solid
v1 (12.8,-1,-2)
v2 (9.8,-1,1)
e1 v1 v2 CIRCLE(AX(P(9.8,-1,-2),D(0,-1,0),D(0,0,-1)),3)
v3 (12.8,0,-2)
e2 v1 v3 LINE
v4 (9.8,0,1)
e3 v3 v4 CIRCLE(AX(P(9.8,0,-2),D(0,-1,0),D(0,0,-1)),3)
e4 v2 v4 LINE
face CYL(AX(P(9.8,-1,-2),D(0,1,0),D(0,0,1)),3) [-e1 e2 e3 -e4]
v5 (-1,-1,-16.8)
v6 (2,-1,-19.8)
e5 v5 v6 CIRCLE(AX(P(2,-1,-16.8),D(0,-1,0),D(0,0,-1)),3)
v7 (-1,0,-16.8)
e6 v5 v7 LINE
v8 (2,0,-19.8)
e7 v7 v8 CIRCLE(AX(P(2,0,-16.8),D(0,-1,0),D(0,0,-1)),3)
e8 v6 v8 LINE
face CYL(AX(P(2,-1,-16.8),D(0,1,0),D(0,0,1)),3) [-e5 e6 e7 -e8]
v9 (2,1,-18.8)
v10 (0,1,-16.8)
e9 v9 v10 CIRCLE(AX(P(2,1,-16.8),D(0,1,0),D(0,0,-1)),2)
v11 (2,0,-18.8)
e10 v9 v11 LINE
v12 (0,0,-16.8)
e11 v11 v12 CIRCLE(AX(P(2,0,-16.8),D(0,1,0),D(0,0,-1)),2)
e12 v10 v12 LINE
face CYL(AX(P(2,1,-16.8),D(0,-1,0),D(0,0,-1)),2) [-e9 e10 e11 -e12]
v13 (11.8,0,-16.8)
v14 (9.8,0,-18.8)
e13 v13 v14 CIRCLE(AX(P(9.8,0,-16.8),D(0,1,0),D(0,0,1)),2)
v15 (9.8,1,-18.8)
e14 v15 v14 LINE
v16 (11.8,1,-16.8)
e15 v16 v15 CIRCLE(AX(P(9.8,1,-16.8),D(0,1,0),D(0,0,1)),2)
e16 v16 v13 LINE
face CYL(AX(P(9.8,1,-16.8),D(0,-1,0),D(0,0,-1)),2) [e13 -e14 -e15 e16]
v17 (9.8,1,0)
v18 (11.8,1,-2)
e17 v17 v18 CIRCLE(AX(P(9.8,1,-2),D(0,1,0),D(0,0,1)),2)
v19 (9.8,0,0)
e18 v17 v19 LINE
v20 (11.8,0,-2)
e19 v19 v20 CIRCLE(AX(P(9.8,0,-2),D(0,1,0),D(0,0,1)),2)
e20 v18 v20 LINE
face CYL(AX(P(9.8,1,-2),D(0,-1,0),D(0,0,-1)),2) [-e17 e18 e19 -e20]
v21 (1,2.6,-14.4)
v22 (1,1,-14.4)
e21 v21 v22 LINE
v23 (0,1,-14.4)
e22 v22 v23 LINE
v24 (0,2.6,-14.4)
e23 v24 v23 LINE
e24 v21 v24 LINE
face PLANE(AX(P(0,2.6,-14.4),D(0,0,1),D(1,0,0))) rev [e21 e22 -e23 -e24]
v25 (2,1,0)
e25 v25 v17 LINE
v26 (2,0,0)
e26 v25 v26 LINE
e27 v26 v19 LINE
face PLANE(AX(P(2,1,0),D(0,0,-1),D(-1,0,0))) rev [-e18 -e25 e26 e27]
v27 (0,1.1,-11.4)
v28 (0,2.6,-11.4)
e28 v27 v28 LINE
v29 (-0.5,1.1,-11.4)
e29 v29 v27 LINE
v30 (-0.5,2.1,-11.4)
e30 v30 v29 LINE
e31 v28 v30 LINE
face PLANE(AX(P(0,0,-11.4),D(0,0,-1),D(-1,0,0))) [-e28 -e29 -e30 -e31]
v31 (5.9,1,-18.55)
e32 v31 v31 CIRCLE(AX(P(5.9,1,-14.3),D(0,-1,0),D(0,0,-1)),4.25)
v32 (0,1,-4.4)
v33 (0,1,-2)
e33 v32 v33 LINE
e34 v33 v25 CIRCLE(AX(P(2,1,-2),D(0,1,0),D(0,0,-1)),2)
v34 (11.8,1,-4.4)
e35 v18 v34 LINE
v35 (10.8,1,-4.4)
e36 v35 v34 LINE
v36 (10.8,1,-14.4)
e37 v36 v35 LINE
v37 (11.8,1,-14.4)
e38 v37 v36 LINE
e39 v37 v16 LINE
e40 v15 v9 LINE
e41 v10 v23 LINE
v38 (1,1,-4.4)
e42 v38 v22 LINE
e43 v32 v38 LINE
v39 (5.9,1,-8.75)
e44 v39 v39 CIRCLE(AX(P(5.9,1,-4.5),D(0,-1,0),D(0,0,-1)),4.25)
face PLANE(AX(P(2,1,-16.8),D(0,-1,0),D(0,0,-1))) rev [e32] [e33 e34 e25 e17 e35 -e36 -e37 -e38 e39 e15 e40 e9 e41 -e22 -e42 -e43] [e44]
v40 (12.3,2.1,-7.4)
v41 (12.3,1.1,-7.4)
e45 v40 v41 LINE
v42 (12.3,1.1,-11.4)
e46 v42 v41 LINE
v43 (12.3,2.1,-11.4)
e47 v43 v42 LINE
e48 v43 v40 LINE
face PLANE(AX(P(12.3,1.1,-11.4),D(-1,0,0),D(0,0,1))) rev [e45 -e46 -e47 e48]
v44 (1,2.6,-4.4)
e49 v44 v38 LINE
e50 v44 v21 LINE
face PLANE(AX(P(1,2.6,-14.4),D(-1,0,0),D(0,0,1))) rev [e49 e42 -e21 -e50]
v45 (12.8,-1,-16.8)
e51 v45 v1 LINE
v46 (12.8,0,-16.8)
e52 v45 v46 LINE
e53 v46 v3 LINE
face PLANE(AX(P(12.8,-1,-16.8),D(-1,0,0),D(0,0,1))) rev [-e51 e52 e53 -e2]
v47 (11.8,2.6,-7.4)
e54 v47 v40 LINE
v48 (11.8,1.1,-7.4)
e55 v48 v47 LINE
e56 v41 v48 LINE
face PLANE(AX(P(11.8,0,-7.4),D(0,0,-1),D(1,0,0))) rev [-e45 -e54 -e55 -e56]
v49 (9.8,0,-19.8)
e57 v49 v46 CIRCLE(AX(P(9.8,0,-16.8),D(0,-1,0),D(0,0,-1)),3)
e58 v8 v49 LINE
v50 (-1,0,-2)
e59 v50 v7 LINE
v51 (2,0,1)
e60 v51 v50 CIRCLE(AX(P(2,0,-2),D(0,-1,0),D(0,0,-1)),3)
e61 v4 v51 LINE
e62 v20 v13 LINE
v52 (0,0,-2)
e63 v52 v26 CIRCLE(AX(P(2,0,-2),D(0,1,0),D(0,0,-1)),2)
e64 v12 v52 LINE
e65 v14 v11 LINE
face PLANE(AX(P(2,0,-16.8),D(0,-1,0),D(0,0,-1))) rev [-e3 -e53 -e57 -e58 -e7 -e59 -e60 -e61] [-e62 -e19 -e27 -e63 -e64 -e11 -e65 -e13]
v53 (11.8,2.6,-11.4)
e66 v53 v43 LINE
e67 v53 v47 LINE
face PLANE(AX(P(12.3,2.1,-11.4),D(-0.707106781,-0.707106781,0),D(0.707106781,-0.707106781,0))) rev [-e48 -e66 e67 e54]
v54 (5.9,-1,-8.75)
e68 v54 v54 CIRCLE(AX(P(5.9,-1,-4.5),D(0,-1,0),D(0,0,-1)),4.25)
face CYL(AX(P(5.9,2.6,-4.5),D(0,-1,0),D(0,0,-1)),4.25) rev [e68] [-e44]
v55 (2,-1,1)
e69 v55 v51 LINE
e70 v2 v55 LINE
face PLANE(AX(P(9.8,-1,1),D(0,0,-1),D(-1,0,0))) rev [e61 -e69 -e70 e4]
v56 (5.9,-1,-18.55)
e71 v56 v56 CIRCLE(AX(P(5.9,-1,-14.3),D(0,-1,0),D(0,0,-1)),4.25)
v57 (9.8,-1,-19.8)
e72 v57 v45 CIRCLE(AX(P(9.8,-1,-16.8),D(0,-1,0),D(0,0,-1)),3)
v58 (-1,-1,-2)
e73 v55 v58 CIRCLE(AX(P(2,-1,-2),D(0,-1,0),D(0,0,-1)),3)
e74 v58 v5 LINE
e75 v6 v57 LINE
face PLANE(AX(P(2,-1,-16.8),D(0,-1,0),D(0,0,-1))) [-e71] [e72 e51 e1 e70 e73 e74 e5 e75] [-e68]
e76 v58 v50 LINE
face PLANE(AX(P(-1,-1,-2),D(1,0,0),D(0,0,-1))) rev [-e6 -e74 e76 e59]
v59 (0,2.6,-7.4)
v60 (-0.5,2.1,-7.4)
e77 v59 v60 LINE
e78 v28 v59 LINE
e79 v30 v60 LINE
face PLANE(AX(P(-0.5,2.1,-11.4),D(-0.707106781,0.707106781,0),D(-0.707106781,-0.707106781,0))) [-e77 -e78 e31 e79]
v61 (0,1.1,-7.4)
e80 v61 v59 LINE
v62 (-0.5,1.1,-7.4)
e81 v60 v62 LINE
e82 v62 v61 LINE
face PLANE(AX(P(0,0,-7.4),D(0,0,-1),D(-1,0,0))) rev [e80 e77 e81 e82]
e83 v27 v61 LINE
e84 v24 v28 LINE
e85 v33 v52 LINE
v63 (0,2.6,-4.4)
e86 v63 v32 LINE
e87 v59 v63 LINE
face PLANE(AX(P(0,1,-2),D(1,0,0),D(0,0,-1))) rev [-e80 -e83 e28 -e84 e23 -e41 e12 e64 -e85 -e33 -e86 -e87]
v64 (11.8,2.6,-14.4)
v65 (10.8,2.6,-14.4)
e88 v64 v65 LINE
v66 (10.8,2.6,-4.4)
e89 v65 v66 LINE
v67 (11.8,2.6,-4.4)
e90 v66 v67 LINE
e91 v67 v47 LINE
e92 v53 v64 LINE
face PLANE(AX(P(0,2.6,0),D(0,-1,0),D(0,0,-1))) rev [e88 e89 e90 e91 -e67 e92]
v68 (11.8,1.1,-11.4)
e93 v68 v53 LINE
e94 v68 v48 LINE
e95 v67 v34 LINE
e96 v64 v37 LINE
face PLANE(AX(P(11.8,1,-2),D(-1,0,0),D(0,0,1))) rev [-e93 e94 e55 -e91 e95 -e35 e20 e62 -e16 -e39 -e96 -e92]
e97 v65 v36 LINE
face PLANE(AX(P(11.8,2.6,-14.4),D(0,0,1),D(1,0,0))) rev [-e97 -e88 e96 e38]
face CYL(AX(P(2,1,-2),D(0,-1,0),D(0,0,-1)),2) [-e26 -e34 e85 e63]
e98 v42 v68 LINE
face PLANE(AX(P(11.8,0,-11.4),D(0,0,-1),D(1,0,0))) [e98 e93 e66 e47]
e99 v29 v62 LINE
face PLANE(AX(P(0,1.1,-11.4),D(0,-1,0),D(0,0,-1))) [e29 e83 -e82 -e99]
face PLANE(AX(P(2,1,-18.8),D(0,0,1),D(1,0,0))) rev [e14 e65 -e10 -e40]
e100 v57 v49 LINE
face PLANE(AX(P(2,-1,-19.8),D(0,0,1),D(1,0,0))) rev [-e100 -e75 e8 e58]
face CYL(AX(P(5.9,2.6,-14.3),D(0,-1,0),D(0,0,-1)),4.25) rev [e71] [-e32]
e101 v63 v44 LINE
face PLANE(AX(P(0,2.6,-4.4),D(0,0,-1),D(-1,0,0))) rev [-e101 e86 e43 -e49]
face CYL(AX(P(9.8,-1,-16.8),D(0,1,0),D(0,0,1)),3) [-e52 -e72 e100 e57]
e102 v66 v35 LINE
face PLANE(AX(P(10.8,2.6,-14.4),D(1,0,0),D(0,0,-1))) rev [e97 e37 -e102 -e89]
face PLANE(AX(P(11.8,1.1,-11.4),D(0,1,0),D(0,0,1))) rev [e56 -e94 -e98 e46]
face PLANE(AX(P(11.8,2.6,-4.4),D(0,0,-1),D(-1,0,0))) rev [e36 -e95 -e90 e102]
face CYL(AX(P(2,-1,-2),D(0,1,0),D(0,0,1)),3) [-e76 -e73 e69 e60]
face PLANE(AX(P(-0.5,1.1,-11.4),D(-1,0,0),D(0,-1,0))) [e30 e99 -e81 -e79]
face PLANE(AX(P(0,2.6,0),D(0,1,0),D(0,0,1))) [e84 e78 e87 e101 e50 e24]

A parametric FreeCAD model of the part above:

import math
import FreeCAD as App
import Part
import Sketcher

V = App.Vector
Q = App.Units.Quantity


def add_polygon(sketch, points):
    """Adds a closed chain of lines whose ends are joined by coincident constraints."""
    first, n = sketch.GeometryCount, len(points)
    for a, b in zip(points, points[1:] + points[:1]):
        sketch.addGeometry(Part.LineSegment(App.Vector(*a, 0), App.Vector(*b, 0)), False)
    for i in range(n):
        sketch.addConstraint(Sketcher.Constraint("Coincident", first + i, 2, first + (i + 1) % n, 1))

doc = App.newDocument("Part")
body = doc.addObject("PartDesign::Body", "Body")

sketch1 = body.newObject("Sketcher::SketchObject", "Sketch")
sketch1.AttachmentSupport = (doc.getObject("XZ_Plane"), [""])
sketch1.MapMode = "FlatFace"
sketch1.addGeometry(Part.LineSegment(V(2, 0, 0), V(9.8, 0, 0)), False)
sketch1.addGeometry(Part.ArcOfCircle(Part.Circle(V(9.8, -2, 0), V(0, 0, 1), 2), math.radians(0), math.radians(90)), False)
sketch1.addGeometry(Part.LineSegment(V(11.8, -2, 0), V(11.8, -16.8, 0)), False)
sketch1.addGeometry(Part.ArcOfCircle(Part.Circle(V(9.8, -16.8, 0), V(0, 0, 1), 2), math.radians(-90), math.radians(0)), False)
sketch1.addGeometry(Part.LineSegment(V(9.8, -18.8, 0), V(2, -18.8, 0)), False)
sketch1.addGeometry(Part.ArcOfCircle(Part.Circle(V(2, -16.8, 0), V(0, 0, 1), 2), math.radians(-180), math.radians(-90)), False)
sketch1.addGeometry(Part.LineSegment(V(0, -16.8, 0), V(0, -2, 0)), False)
sketch1.addGeometry(Part.ArcOfCircle(Part.Circle(V(2, -2, 0), V(0, 0, 1), 2), math.radians(90), math.radians(180)), False)
sketch1.addConstraint(Sketcher.Constraint("Tangent", 0, 2, 1, 2))
sketch1.addConstraint(Sketcher.Constraint("Tangent", 1, 1, 2, 1))
sketch1.addConstraint(Sketcher.Constraint("Tangent", 2, 2, 3, 2))
sketch1.addConstraint(Sketcher.Constraint("Tangent", 3, 1, 4, 1))
sketch1.addConstraint(Sketcher.Constraint("Tangent", 4, 2, 5, 2))
sketch1.addConstraint(Sketcher.Constraint("Tangent", 5, 1, 6, 1))
sketch1.addConstraint(Sketcher.Constraint("Tangent", 6, 2, 7, 2))
sketch1.addConstraint(Sketcher.Constraint("Tangent", 7, 1, 0, 1))
sketch1.addConstraint(Sketcher.Constraint("Horizontal", 0))
sketch1.addConstraint(Sketcher.Constraint("Vertical", 2))
sketch1.addConstraint(Sketcher.Constraint("Horizontal", 4))
sketch1.addConstraint(Sketcher.Constraint("Vertical", 6))
sketch1.addConstraint(Sketcher.Constraint("Equal", 1, 3))
sketch1.addConstraint(Sketcher.Constraint("Equal", 3, 5))
sketch1.addConstraint(Sketcher.Constraint("Equal", 5, 7))
sketch1.addConstraint(Sketcher.Constraint("PointOnObject", 0, 2, -1))
sketch1.addConstraint(Sketcher.Constraint("PointOnObject", 5, 1, -2))
sketch1.addConstraint(Sketcher.Constraint("Radius", 1, Q("2 mm")))
sketch1.addConstraint(Sketcher.Constraint("DistanceX", 0, 1, 0, 2, Q("7.8 mm")))
sketch1.addConstraint(Sketcher.Constraint("DistanceY", 2, 2, 2, 1, Q("14.8 mm")))
pad1 = body.newObject("PartDesign::Pad", "Pad")
pad1.Profile = sketch1
pad1.Length = 1
pad1.Reversed = True

sketch2 = body.newObject("Sketcher::SketchObject", "Sketch001")
sketch2.AttachmentSupport = (doc.getObject("XZ_Plane"), [""])
sketch2.MapMode = "FlatFace"
sketch2.AttachmentOffset = App.Placement(V(0, 0, -1), App.Rotation())
add_polygon(sketch2, [(0, -14.4), (0, -4.4), (1, -4.4), (1, -14.4)])
add_polygon(sketch2, [(10.8, -14.4), (10.8, -4.4), (11.8, -4.4), (11.8, -14.4)])
sketch2.addConstraint(Sketcher.Constraint("Vertical", 0))
sketch2.addConstraint(Sketcher.Constraint("Horizontal", 1))
sketch2.addConstraint(Sketcher.Constraint("Vertical", 2))
sketch2.addConstraint(Sketcher.Constraint("Horizontal", 3))
sketch2.addConstraint(Sketcher.Constraint("Vertical", 4))
sketch2.addConstraint(Sketcher.Constraint("Horizontal", 5))
sketch2.addConstraint(Sketcher.Constraint("Vertical", 6))
sketch2.addConstraint(Sketcher.Constraint("Horizontal", 7))
sketch2.addConstraint(Sketcher.Constraint("PointOnObject", 0, 2, -2))
sketch2.addConstraint(Sketcher.Constraint("Horizontal", 1, 2, 4, 2))
sketch2.addConstraint(Sketcher.Constraint("Horizontal", 3, 2, 6, 2))
sketch2.addConstraint(Sketcher.Constraint("Equal", 3, 5))
sketch2.addConstraint(Sketcher.Constraint("DistanceX", 1, 1, 1, 2, Q("1 mm")))
sketch2.addConstraint(Sketcher.Constraint("DistanceY", 0, 1, 0, 2, Q("10 mm")))
sketch2.addConstraint(Sketcher.Constraint("DistanceY", 0, 2, -1, 1, Q("4.4 mm")))
sketch2.addConstraint(Sketcher.Constraint("DistanceX", -1, 1, 4, 2, Q("10.8 mm")))
pad2 = body.newObject("PartDesign::Pad", "Pad001")
pad2.Profile = sketch2
pad2.Length = 1.6
pad2.Reversed = True

sketch3 = body.newObject("Sketcher::SketchObject", "Sketch002")
sketch3.AttachmentSupport = (doc.getObject("XY_Plane"), [""])
sketch3.MapMode = "FlatFace"
sketch3.AttachmentOffset = App.Placement(V(0, 0, -9.4), App.Rotation())
add_polygon(sketch3, [(0, 1.1), (0, 2.6), (-0.5, 2.1), (-0.5, 1.1)])
sketch3.addConstraint(Sketcher.Constraint("Vertical", 0))
sketch3.addConstraint(Sketcher.Constraint("Vertical", 2))
sketch3.addConstraint(Sketcher.Constraint("Horizontal", 3))
sketch3.addConstraint(Sketcher.Constraint("PointOnObject", 0, 2, -2))
sketch3.addConstraint(Sketcher.Constraint("DistanceY", 2, 2, 2, 1, Q("1 mm")))
sketch3.addConstraint(Sketcher.Constraint("Angle", 1, Q("-135 deg")))
sketch3.addConstraint(Sketcher.Constraint("DistanceX", 3, 1, 3, 2, Q("0.5 mm")))
sketch3.addConstraint(Sketcher.Constraint("DistanceY", -1, 1, 0, 2, Q("2.6 mm")))
pad3 = body.newObject("PartDesign::Pad", "Pad002")
pad3.Profile = sketch3
pad3.Length = 4
pad3.Midplane = True

sketch4 = body.newObject("Sketcher::SketchObject", "Sketch003")
sketch4.AttachmentSupport = (doc.getObject("XZ_Plane"), [""])
sketch4.MapMode = "FlatFace"
sketch4.addGeometry(Part.LineSegment(V(2, -19.8, 0), V(9.8, -19.8, 0)), False)
sketch4.addGeometry(Part.ArcOfCircle(Part.Circle(V(9.8, -16.8, 0), V(0, 0, 1), 3), math.radians(-90), math.radians(0)), False)
sketch4.addGeometry(Part.LineSegment(V(12.8, -16.8, 0), V(12.8, -2, 0)), False)
sketch4.addGeometry(Part.ArcOfCircle(Part.Circle(V(9.8, -2, 0), V(0, 0, 1), 3), math.radians(0), math.radians(90)), False)
sketch4.addGeometry(Part.LineSegment(V(9.8, 1, 0), V(2, 1, 0)), False)
sketch4.addGeometry(Part.ArcOfCircle(Part.Circle(V(2, -2, 0), V(0, 0, 1), 3), math.radians(90), math.radians(180)), False)
sketch4.addGeometry(Part.LineSegment(V(-1, -2, 0), V(-1, -16.8, 0)), False)
sketch4.addGeometry(Part.ArcOfCircle(Part.Circle(V(2, -16.8, 0), V(0, 0, 1), 3), math.radians(180), math.radians(270)), False)
sketch4.addConstraint(Sketcher.Constraint("Tangent", 0, 2, 1, 1))
sketch4.addConstraint(Sketcher.Constraint("Tangent", 1, 2, 2, 1))
sketch4.addConstraint(Sketcher.Constraint("Tangent", 2, 2, 3, 1))
sketch4.addConstraint(Sketcher.Constraint("Tangent", 3, 2, 4, 1))
sketch4.addConstraint(Sketcher.Constraint("Tangent", 4, 2, 5, 1))
sketch4.addConstraint(Sketcher.Constraint("Tangent", 5, 2, 6, 1))
sketch4.addConstraint(Sketcher.Constraint("Tangent", 6, 2, 7, 1))
sketch4.addConstraint(Sketcher.Constraint("Tangent", 7, 2, 0, 1))
sketch4.addConstraint(Sketcher.Constraint("Horizontal", 0))
sketch4.addConstraint(Sketcher.Constraint("Vertical", 2))
sketch4.addConstraint(Sketcher.Constraint("Horizontal", 4))
sketch4.addConstraint(Sketcher.Constraint("Vertical", 6))
sketch4.addConstraint(Sketcher.Constraint("Equal", 1, 3))
sketch4.addConstraint(Sketcher.Constraint("Equal", 3, 5))
sketch4.addConstraint(Sketcher.Constraint("Equal", 5, 7))
sketch4.addConstraint(Sketcher.Constraint("Radius", 1, Q("3 mm")))
sketch4.addConstraint(Sketcher.Constraint("DistanceX", 0, 1, 0, 2, Q("7.8 mm")))
sketch4.addConstraint(Sketcher.Constraint("DistanceY", 2, 1, 2, 2, Q("14.8 mm")))
sketch4.addConstraint(Sketcher.Constraint("DistanceY", 3, 3, -1, 1, Q("2 mm")))
sketch4.addConstraint(Sketcher.Constraint("DistanceX", -1, 1, 5, 3, Q("2 mm")))
pad4 = body.newObject("PartDesign::Pad", "Pad003")
pad4.Profile = sketch4
pad4.Length = 1
doc.recompute()

datumplane = body.newObject("PartDesign::Plane", "DatumPlane")
datumplane.AttachmentSupport = (doc.getObject("XY_Plane"), [""])
datumplane.MapMode = "FlatFace"
datumplane.AttachmentOffset = App.Placement(V(0, 0, -9.4), App.Rotation())
mirrored = body.newObject("PartDesign::Mirrored", "Mirrored")
mirrored.Originals = [pad3]
mirrored.MirrorPlane = (datumplane, [""])
body.Tip = mirrored
doc.recompute()

datumplane2 = body.newObject("PartDesign::Plane", "DatumPlane001")
datumplane2.AttachmentSupport = (doc.getObject("YZ_Plane"), [""])
datumplane2.MapMode = "FlatFace"
datumplane2.AttachmentOffset = App.Placement(V(0, 0, 5.9), App.Rotation())
mirrored2 = body.newObject("PartDesign::Mirrored", "Mirrored001")
mirrored2.Originals = [pad3]
mirrored2.MirrorPlane = (datumplane2, [""])
body.Tip = mirrored2

sketch5 = body.newObject("Sketcher::SketchObject", "Sketch004")
sketch5.AttachmentSupport = (doc.getObject("XY_Plane"), [""])
sketch5.MapMode = "FlatFace"
sketch5.AttachmentOffset = App.Placement(V(0, 0, -9.4), App.Rotation())
add_polygon(sketch5, [(11.8, 1.1), (11.8, 2.6), (12.3, 2.1), (12.3, 1.1)])
sketch5.addConstraint(Sketcher.Constraint("Vertical", 0))
sketch5.addConstraint(Sketcher.Constraint("Vertical", 2))
sketch5.addConstraint(Sketcher.Constraint("Horizontal", 3))
sketch5.addConstraint(Sketcher.Constraint("DistanceY", 2, 2, 2, 1, Q("1 mm")))
sketch5.addConstraint(Sketcher.Constraint("Angle", 1, Q("-45 deg")))
sketch5.addConstraint(Sketcher.Constraint("DistanceX", 3, 2, 3, 1, Q("0.5 mm")))
sketch5.addConstraint(Sketcher.Constraint("DistanceX", -1, 1, 0, 2, Q("11.8 mm")))
sketch5.addConstraint(Sketcher.Constraint("DistanceY", -1, 1, 0, 2, Q("2.6 mm")))
pad5 = body.newObject("PartDesign::Pad", "Pad004")
pad5.Profile = sketch5
pad5.Length = 4
pad5.Midplane = True

sketch6 = body.newObject("Sketcher::SketchObject", "Sketch005")
sketch6.AttachmentSupport = (doc.getObject("XZ_Plane"), [""])
sketch6.MapMode = "FlatFace"
sketch6.AttachmentOffset = App.Placement(V(0, 0, 1), App.Rotation())
sketch6.addGeometry(Part.Circle(V(5.9, -4.5, 0), V(0, 0, 1), 4.2), False)
sketch6.addGeometry(Part.Circle(V(5.9, -14.3, 0), V(0, 0, 1), 4.2), False)
sketch6.addConstraint(Sketcher.Constraint("Equal", 0, 1))
sketch6.addConstraint(Sketcher.Constraint("Vertical", 0, 3, 1, 3))
sketch6.addConstraint(Sketcher.Constraint("Diameter", 0, Q("8.5 mm")))
sketch6.addConstraint(Sketcher.Constraint("DistanceX", -1, 1, 0, 3, Q("5.9 mm")))
sketch6.addConstraint(Sketcher.Constraint("DistanceY", 0, 3, -1, 1, Q("4.5 mm")))
sketch6.addConstraint(Sketcher.Constraint("DistanceY", 1, 3, -1, 1, Q("14.3 mm")))
pocket1 = body.newObject("PartDesign::Pocket", "Pocket")
pocket1.Profile = sketch6
pocket1.Type = "ThroughAll"

doc.recompute()
